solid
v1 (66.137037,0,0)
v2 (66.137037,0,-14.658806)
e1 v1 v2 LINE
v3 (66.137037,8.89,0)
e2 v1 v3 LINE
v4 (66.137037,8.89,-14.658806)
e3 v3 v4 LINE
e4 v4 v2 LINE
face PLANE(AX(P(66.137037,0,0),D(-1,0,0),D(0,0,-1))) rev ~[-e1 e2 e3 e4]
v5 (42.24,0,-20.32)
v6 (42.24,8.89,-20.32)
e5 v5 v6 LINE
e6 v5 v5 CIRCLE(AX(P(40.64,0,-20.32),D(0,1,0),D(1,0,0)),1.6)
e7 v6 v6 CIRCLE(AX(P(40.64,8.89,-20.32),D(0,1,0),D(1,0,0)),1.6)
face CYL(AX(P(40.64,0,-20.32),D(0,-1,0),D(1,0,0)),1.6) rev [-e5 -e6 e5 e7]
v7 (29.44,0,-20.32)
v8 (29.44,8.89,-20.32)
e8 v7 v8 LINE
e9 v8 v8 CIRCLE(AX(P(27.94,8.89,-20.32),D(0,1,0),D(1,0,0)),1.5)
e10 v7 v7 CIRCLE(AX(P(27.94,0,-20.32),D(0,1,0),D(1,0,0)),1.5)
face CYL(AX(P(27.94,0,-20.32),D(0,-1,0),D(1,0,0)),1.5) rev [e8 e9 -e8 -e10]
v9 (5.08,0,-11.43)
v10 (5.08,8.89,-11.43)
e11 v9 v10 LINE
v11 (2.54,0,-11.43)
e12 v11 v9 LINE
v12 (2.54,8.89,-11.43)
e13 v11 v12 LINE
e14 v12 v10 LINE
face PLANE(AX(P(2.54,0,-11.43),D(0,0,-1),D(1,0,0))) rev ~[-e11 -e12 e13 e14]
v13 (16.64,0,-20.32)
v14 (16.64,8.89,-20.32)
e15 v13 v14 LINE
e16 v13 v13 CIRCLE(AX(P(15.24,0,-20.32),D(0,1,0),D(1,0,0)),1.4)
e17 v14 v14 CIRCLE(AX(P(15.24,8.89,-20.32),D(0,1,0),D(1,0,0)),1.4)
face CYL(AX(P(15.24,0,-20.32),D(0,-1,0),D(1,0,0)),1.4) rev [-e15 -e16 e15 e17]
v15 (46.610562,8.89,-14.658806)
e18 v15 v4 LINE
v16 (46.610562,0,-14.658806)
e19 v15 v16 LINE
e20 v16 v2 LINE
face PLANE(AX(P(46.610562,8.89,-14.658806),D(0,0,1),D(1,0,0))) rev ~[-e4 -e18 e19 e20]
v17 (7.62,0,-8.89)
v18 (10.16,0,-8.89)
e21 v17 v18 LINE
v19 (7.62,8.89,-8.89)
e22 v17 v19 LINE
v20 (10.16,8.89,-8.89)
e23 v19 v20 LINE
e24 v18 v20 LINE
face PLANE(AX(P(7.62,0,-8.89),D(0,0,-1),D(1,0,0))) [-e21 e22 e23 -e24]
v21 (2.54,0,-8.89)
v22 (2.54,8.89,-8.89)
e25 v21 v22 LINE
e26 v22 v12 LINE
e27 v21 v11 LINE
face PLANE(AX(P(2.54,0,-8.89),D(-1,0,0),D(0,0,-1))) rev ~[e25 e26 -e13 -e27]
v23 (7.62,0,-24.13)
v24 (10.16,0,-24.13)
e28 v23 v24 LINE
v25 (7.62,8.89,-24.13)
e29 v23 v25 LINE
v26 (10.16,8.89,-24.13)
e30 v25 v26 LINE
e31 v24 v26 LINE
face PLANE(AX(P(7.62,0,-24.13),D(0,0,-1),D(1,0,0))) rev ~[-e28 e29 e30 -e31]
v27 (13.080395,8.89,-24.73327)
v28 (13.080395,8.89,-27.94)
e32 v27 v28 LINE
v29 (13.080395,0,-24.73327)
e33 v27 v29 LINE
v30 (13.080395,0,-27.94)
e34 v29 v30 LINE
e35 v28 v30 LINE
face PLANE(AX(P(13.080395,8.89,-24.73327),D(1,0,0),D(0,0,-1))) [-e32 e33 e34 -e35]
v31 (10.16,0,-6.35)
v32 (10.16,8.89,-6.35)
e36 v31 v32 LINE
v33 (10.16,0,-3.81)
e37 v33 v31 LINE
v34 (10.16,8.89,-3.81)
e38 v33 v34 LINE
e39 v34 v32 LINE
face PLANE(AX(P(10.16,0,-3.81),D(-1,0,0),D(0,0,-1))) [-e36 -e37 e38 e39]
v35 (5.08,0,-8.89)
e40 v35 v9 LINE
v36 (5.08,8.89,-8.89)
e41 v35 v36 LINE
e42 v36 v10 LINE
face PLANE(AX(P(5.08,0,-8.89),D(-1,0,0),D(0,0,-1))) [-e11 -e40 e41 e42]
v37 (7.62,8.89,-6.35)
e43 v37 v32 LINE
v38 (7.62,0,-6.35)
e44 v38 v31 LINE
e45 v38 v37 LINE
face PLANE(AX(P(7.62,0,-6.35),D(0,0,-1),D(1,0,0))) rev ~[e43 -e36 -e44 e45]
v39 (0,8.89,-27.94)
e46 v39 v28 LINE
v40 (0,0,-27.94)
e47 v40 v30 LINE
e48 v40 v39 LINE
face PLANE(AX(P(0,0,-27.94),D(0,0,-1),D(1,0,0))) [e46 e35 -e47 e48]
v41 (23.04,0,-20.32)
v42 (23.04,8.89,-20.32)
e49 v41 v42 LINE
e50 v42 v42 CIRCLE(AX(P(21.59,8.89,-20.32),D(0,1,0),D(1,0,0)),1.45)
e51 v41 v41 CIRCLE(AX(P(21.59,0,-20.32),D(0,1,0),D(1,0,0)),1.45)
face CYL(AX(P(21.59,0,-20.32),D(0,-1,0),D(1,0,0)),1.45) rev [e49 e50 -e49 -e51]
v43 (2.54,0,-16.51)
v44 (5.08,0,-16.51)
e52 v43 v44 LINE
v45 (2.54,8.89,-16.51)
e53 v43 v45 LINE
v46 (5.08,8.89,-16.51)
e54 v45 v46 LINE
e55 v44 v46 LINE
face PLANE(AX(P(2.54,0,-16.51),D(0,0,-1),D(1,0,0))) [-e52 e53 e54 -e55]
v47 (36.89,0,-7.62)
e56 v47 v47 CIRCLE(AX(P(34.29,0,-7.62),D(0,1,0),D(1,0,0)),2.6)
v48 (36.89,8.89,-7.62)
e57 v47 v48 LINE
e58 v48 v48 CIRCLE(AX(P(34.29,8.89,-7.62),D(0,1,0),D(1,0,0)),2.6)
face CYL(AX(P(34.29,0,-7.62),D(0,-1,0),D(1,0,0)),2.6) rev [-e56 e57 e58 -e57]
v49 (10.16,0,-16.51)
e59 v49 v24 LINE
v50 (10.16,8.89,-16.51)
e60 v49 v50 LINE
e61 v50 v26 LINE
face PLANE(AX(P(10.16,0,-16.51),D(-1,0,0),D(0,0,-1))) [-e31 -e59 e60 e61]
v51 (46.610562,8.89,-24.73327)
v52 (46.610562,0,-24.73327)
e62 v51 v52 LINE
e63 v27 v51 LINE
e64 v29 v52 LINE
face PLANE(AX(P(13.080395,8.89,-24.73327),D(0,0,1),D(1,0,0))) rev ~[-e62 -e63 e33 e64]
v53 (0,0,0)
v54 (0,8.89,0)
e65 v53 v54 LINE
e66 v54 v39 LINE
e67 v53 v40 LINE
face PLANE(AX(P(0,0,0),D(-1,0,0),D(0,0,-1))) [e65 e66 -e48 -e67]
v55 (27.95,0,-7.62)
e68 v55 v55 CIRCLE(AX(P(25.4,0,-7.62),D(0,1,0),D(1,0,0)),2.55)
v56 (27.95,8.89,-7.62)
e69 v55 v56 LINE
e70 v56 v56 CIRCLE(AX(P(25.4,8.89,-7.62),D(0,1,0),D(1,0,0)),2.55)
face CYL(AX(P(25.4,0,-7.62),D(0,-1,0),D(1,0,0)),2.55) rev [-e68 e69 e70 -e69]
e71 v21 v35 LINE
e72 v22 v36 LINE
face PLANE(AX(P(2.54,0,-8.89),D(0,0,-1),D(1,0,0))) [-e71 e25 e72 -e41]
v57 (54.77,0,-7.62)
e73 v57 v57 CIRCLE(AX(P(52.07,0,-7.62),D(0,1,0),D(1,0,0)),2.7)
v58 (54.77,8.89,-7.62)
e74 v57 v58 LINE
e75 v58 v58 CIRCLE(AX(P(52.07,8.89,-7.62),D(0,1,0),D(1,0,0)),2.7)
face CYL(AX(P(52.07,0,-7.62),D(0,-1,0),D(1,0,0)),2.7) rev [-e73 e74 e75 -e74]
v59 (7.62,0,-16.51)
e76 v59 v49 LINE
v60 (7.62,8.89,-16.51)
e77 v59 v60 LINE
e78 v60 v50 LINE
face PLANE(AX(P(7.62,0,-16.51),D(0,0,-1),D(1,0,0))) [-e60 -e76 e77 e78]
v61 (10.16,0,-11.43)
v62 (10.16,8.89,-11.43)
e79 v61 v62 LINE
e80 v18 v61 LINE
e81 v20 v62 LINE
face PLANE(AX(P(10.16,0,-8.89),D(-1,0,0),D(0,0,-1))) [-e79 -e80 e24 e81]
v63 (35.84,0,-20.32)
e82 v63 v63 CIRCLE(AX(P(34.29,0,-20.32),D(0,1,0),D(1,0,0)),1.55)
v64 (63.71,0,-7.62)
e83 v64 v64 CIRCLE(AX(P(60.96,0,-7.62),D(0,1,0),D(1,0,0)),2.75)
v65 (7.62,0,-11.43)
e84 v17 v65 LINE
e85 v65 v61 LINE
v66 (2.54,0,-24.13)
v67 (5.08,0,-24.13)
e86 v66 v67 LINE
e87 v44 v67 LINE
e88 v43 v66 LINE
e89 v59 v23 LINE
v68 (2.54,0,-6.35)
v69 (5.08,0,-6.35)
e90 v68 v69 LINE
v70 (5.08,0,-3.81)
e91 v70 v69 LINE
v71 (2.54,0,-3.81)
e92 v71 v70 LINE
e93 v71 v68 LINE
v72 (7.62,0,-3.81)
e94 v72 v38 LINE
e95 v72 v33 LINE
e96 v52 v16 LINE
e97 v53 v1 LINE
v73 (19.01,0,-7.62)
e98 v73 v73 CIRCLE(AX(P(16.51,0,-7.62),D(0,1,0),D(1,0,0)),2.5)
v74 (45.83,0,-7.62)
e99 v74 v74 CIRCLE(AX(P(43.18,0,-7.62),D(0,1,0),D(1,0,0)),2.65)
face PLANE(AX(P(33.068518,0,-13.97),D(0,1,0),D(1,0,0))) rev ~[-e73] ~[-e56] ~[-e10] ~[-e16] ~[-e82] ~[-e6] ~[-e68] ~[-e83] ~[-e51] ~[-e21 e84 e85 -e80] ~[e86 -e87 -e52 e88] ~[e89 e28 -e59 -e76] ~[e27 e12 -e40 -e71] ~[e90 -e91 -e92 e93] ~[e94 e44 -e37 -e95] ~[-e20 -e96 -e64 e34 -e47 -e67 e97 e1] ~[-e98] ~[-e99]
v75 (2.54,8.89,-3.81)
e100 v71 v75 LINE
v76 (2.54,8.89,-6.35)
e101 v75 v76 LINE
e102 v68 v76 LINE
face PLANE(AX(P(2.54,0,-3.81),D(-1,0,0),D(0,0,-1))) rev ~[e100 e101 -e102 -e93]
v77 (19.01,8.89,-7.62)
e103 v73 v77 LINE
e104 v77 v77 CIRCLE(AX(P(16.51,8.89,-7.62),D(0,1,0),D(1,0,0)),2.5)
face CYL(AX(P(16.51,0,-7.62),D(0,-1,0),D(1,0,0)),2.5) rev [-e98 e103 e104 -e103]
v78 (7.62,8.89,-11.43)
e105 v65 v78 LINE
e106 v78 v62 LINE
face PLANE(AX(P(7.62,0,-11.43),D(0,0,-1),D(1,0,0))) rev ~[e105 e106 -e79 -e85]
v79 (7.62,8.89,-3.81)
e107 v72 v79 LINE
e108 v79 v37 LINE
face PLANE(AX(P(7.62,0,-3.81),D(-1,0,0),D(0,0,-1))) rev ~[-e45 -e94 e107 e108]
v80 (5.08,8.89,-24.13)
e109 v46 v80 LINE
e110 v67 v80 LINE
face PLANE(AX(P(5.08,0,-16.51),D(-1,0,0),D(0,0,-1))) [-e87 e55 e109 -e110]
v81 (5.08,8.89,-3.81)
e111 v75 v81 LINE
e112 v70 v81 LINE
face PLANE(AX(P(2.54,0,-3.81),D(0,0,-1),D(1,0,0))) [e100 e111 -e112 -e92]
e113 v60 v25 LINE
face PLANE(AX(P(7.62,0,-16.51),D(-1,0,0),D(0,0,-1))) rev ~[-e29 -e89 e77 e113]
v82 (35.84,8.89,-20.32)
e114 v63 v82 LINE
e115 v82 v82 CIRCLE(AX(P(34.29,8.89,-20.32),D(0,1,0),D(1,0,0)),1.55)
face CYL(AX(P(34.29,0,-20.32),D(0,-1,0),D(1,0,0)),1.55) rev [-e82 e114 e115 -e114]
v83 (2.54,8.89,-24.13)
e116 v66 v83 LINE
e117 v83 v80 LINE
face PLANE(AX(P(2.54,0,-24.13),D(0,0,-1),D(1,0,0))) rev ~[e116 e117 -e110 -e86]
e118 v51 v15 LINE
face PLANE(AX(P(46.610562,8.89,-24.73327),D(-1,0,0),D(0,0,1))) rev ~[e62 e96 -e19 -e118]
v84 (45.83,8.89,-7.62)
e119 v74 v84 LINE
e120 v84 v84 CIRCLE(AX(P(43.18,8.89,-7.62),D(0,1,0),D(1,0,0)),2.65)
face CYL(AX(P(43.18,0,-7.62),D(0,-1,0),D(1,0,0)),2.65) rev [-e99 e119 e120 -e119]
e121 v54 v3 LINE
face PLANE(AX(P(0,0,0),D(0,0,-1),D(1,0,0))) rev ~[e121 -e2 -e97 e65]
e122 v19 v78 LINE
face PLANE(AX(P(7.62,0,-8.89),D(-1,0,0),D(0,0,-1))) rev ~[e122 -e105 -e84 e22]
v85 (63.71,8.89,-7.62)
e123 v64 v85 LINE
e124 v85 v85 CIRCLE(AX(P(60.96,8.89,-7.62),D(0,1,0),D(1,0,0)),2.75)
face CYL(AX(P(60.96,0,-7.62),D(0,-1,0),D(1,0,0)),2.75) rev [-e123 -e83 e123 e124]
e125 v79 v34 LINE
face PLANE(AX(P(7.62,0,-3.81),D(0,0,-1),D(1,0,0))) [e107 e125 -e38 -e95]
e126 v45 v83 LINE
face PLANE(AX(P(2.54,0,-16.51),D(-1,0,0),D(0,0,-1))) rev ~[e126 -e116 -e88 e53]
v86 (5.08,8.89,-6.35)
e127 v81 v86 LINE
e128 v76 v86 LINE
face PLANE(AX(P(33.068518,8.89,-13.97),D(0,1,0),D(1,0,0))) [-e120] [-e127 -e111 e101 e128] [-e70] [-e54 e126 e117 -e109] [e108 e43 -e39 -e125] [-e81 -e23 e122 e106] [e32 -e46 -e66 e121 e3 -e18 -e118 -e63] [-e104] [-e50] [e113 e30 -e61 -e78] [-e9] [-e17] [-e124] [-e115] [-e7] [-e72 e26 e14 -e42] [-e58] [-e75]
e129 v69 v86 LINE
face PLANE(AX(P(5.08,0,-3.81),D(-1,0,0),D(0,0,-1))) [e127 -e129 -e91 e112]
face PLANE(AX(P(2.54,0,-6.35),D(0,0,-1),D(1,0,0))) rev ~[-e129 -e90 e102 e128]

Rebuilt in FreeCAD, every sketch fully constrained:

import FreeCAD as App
import Part
import Sketcher

V = App.Vector
Q = App.Units.Quantity


def add_polygon(sketch, points):
    """Adds a closed chain of lines whose ends are joined by coincident constraints."""
    first, n = sketch.GeometryCount, len(points)
    for a, b in zip(points, points[1:] + points[:1]):
        sketch.addGeometry(Part.LineSegment(App.Vector(*a, 0), App.Vector(*b, 0)), False)
    for i in range(n):
        sketch.addConstraint(Sketcher.Constraint("Coincident", first + i, 2, first + (i + 1) % n, 1))

doc = App.newDocument("Part")
body = doc.addObject("PartDesign::Body", "Body")

# Sketch on XZ plane
sketch1 = body.newObject("Sketcher::SketchObject", "Sketch")
sketch1.AttachmentSupport = (doc.getObject("XZ_Plane"), [""])
sketch1.MapMode = "FlatFace"
add_polygon(sketch1, [(0, -27.9), (0, 0), (66.1, 0), (66.1, -27.9)])  # lines 0-3
add_polygon(sketch1, [(5.1, -3.8), (2.5, -3.8), (2.5, -6.3), (5.1, -6.3)])  # lines 4-7
add_polygon(sketch1, [(10.2, -3.8), (7.6, -3.8), (7.6, -6.3), (10.2, -6.3)])  # lines 8-11
sketch1.addGeometry(Part.Circle(V(16.5, -7.6, 0), V(0, 0, 1), 2.5), False)  # 12
sketch1.addGeometry(Part.Circle(V(25.4, -7.6, 0), V(0, 0, 1), 2.5), False)  # 13
add_polygon(sketch1, [(5.1, -8.9), (2.5, -8.9), (2.5, -11.4), (5.1, -11.4)])  # lines 14-17
add_polygon(sketch1, [(10.2, -8.9), (7.6, -8.9), (7.6, -11.4), (10.2, -11.4)])  # lines 18-21
sketch1.addGeometry(Part.Circle(V(34.3, -7.6, 0), V(0, 0, 1), 2.6), False)  # 22
sketch1.addGeometry(Part.Circle(V(43.2, -7.6, 0), V(0, 0, 1), 2.6), False)  # 23
sketch1.addGeometry(Part.Circle(V(52.1, -7.6, 0), V(0, 0, 1), 2.7), False)  # 24
sketch1.addGeometry(Part.Circle(V(61, -7.6, 0), V(0, 0, 1), 2.8), False)  # 25
add_polygon(sketch1, [(5.1, -16.5), (2.5, -16.5), (2.5, -24.1), (5.1, -24.1)])  # lines 26-29
add_polygon(sketch1, [(10.2, -16.5), (7.6, -16.5), (7.6, -24.1), (10.2, -24.1)])  # lines 30-33
sketch1.addGeometry(Part.Circle(V(15.2, -20.3, 0), V(0, 0, 1), 1.4), False)  # 34
sketch1.addGeometry(Part.Circle(V(21.6, -20.3, 0), V(0, 0, 1), 1.4), False)  # 35
sketch1.addGeometry(Part.Circle(V(27.9, -20.3, 0), V(0, 0, 1), 1.5), False)  # 36
sketch1.addGeometry(Part.Circle(V(34.3, -20.3, 0), V(0, 0, 1), 1.6), False)  # 37
sketch1.addGeometry(Part.Circle(V(40.6, -20.3, 0), V(0, 0, 1), 1.6), False)  # 38
sketch1.addConstraint(Sketcher.Constraint("Vertical", 0))
sketch1.addConstraint(Sketcher.Constraint("Horizontal", 1))
sketch1.addConstraint(Sketcher.Constraint("Vertical", 2))
sketch1.addConstraint(Sketcher.Constraint("Horizontal", 3))
sketch1.addConstraint(Sketcher.Constraint("Horizontal", 4))
sketch1.addConstraint(Sketcher.Constraint("Vertical", 5))
sketch1.addConstraint(Sketcher.Constraint("Horizontal", 6))
sketch1.addConstraint(Sketcher.Constraint("Vertical", 7))
sketch1.addConstraint(Sketcher.Constraint("Horizontal", 8))
sketch1.addConstraint(Sketcher.Constraint("Vertical", 9))
sketch1.addConstraint(Sketcher.Constraint("Horizontal", 10))
sketch1.addConstraint(Sketcher.Constraint("Vertical", 11))
sketch1.addConstraint(Sketcher.Constraint("Horizontal", 14))
sketch1.addConstraint(Sketcher.Constraint("Vertical", 15))
sketch1.addConstraint(Sketcher.Constraint("Horizontal", 16))
sketch1.addConstraint(Sketcher.Constraint("Vertical", 17))
sketch1.addConstraint(Sketcher.Constraint("Horizontal", 18))
sketch1.addConstraint(Sketcher.Constraint("Vertical", 19))
sketch1.addConstraint(Sketcher.Constraint("Horizontal", 20))
sketch1.addConstraint(Sketcher.Constraint("Vertical", 21))
sketch1.addConstraint(Sketcher.Constraint("Horizontal", 26))
sketch1.addConstraint(Sketcher.Constraint("Vertical", 27))
sketch1.addConstraint(Sketcher.Constraint("Horizontal", 28))
sketch1.addConstraint(Sketcher.Constraint("Vertical", 29))
sketch1.addConstraint(Sketcher.Constraint("Horizontal", 30))
sketch1.addConstraint(Sketcher.Constraint("Vertical", 31))
sketch1.addConstraint(Sketcher.Constraint("Horizontal", 32))
sketch1.addConstraint(Sketcher.Constraint("Vertical", 33))
sketch1.addConstraint(Sketcher.Constraint("Coincident", 0, 2, -1, 1))
sketch1.addConstraint(Sketcher.Constraint("Horizontal", 12, 3, 13, 3))
sketch1.addConstraint(Sketcher.Constraint("Horizontal", 13, 3, 22, 3))
sketch1.addConstraint(Sketcher.Constraint("Horizontal", 22, 3, 23, 3))
sketch1.addConstraint(Sketcher.Constraint("Horizontal", 23, 3, 24, 3))
sketch1.addConstraint(Sketcher.Constraint("Horizontal", 24, 3, 25, 3))
sketch1.addConstraint(Sketcher.Constraint("Horizontal", 34, 3, 35, 3))
sketch1.addConstraint(Sketcher.Constraint("Horizontal", 35, 3, 36, 3))
sketch1.addConstraint(Sketcher.Constraint("Horizontal", 36, 3, 37, 3))
sketch1.addConstraint(Sketcher.Constraint("Horizontal", 37, 3, 38, 3))
sketch1.addConstraint(Sketcher.Constraint("Horizontal", 7, 2, 8, 2))
sketch1.addConstraint(Sketcher.Constraint("Horizontal", 6, 2, 9, 2))
sketch1.addConstraint(Sketcher.Constraint("Horizontal", 17, 2, 18, 2))
sketch1.addConstraint(Sketcher.Constraint("Horizontal", 16, 2, 19, 2))
sketch1.addConstraint(Sketcher.Constraint("Horizontal", 29, 2, 30, 2))
sketch1.addConstraint(Sketcher.Constraint("Horizontal", 28, 2, 31, 2))
sketch1.addConstraint(Sketcher.Constraint("Vertical", 22, 3, 37, 3))
sketch1.addConstraint(Sketcher.Constraint("Vertical", 5, 2, 14, 2))
sketch1.addConstraint(Sketcher.Constraint("Vertical", 7, 2, 16, 2))
sketch1.addConstraint(Sketcher.Constraint("Vertical", 9, 2, 18, 2))
sketch1.addConstraint(Sketcher.Constraint("Vertical", 11, 2, 20, 2))
sketch1.addConstraint(Sketcher.Constraint("Vertical", 15, 2, 26, 2))
sketch1.addConstraint(Sketcher.Constraint("Vertical", 17, 2, 28, 2))
sketch1.addConstraint(Sketcher.Constraint("Vertical", 19, 2, 30, 2))
sketch1.addConstraint(Sketcher.Constraint("Vertical", 21, 2, 32, 2))
sketch1.addConstraint(Sketcher.Constraint("Equal", 6, 8))
sketch1.addConstraint(Sketcher.Constraint("Equal", 32, 5))
sketch1.addConstraint(Sketcher.Constraint("Equal", 11, 15))
sketch1.addConstraint(Sketcher.Constraint("Diameter", 12, Q("5 mm")))
sketch1.addConstraint(Sketcher.Constraint("Diameter", 36, Q("3 mm")))
sketch1.addConstraint(Sketcher.Constraint("Diameter", 13, Q("5.1 mm")))
sketch1.addConstraint(Sketcher.Constraint("Diameter", 22, Q("5.2 mm")))
sketch1.addConstraint(Sketcher.Constraint("Diameter", 23, Q("5.3 mm")))
sketch1.addConstraint(Sketcher.Constraint("Diameter", 24, Q("5.4 mm")))
sketch1.addConstraint(Sketcher.Constraint("Diameter", 25, Q("5.5 mm")))
sketch1.addConstraint(Sketcher.Constraint("Diameter", 34, Q("2.8 mm")))
sketch1.addConstraint(Sketcher.Constraint("Diameter", 35, Q("2.9 mm")))
sketch1.addConstraint(Sketcher.Constraint("Diameter", 37, Q("3.1 mm")))
sketch1.addConstraint(Sketcher.Constraint("Diameter", 38, Q("3.2 mm")))
sketch1.addConstraint(Sketcher.Constraint("DistanceX", 4, 2, 4, 1, Q("2.54 mm")))
sketch1.addConstraint(Sketcher.Constraint("DistanceY", 0, 1, 0, 2, Q("27.94 mm")))
sketch1.addConstraint(Sketcher.Constraint("DistanceY", 27, 2, 27, 1, Q("7.62 mm")))
sketch1.addConstraint(Sketcher.Constraint("DistanceX", -1, 1, 13, 3, Q("25.4 mm")))
sketch1.addConstraint(Sketcher.Constraint("DistanceY", 34, 3, 12, 3, Q("12.7 mm")))
sketch1.addConstraint(Sketcher.Constraint("DistanceX", 35, 3, 22, 3, Q("12.7 mm")))
sketch1.addConstraint(Sketcher.Constraint("DistanceX", 34, 3, 36, 3, Q("12.7 mm")))
sketch1.addConstraint(Sketcher.Constraint("DistanceX", 36, 3, 38, 3, Q("12.7 mm")))
sketch1.addConstraint(Sketcher.Constraint("DistanceX", 4, 2, 34, 3, Q("12.7 mm")))
sketch1.addConstraint(Sketcher.Constraint("DistanceY", 27, 2, 15, 2, Q("12.7 mm")))
sketch1.addConstraint(Sketcher.Constraint("DistanceX", -1, 1, 12, 3, Q("16.51 mm")))
sketch1.addConstraint(Sketcher.Constraint("DistanceY", 12, 3, -1, 1, Q("7.62 mm")))
sketch1.addConstraint(Sketcher.Constraint("DistanceX", -1, 1, 22, 3, Q("34.29 mm")))
sketch1.addConstraint(Sketcher.Constraint("DistanceX", -1, 1, 23, 3, Q("43.18 mm")))
sketch1.addConstraint(Sketcher.Constraint("DistanceX", -1, 1, 24, 3, Q("52.07 mm")))
sketch1.addConstraint(Sketcher.Constraint("DistanceX", -1, 1, 25, 3, Q("60.96 mm")))
sketch1.addConstraint(Sketcher.Constraint("DistanceX", -1, 1, 34, 3, Q("15.24 mm")))
sketch1.addConstraint(Sketcher.Constraint("DistanceY", 4, 2, -1, 1, Q("3.81 mm")))
sketch1.addConstraint(Sketcher.Constraint("DistanceX", -1, 1, 8, 2, Q("7.62 mm")))
sketch1.addConstraint(Sketcher.Constraint("DistanceY", 14, 2, -1, 1, Q("8.89 mm")))
sketch1.addConstraint(Sketcher.Constraint("DistanceX", 1, 1, 1, 2, Q("66.137037 mm")))
pad1 = body.newObject("PartDesign::Pad", "Pad")
pad1.Profile = sketch1
pad1.Length = 8.89
pad1.Reversed = True

# Sketch on XZ plane
sketch2 = body.newObject("Sketcher::SketchObject", "Sketch001")
sketch2.AttachmentSupport = (doc.getObject("XZ_Plane"), [""])
sketch2.MapMode = "FlatFace"
sketch2.AttachmentOffset = App.Placement(V(0, 0, -8.89), App.Rotation())
add_polygon(sketch2, [(13.1, -27.9), (13.1, -24.7), (46.6, -24.7), (46.6, -14.7), (66.1, -14.7), (66.1, -27.9), (46.6, -27.9)])  # lines 0-6
sketch2.addConstraint(Sketcher.Constraint("Vertical", 0))
sketch2.addConstraint(Sketcher.Constraint("Horizontal", 1))
sketch2.addConstraint(Sketcher.Constraint("Vertical", 2))
sketch2.addConstraint(Sketcher.Constraint("Horizontal", 3))
sketch2.addConstraint(Sketcher.Constraint("Vertical", 4))
sketch2.addConstraint(Sketcher.Constraint("Horizontal", 5))
sketch2.addConstraint(Sketcher.Constraint("Horizontal", 6))
sketch2.addConstraint(Sketcher.Constraint("Vertical", 2, 2, 5, 2))
sketch2.addConstraint(Sketcher.Constraint("DistanceY", 4, 2, -1, 1, Q("27.94 mm")))
sketch2.addConstraint(Sketcher.Constraint("DistanceY", 0, 1, 0, 2, Q("3.20673 mm")))
sketch2.addConstraint(Sketcher.Constraint("DistanceX", 1, 1, 1, 2, Q("33.530167 mm")))
sketch2.addConstraint(Sketcher.Constraint("DistanceX", 3, 1, 3, 2, Q("19.526475 mm")))
sketch2.addConstraint(Sketcher.Constraint("DistanceY", 2, 1, 2, 2, Q("10.074464 mm")))
sketch2.addConstraint(Sketcher.Constraint("DistanceX", -1, 1, 0, 2, Q("13.080395 mm")))
pocket1 = body.newObject("PartDesign::Pocket", "Pocket")
pocket1.Profile = sketch2
pocket1.Type = "ThroughAll"
pocket1.Reversed = True

doc.recompute()
